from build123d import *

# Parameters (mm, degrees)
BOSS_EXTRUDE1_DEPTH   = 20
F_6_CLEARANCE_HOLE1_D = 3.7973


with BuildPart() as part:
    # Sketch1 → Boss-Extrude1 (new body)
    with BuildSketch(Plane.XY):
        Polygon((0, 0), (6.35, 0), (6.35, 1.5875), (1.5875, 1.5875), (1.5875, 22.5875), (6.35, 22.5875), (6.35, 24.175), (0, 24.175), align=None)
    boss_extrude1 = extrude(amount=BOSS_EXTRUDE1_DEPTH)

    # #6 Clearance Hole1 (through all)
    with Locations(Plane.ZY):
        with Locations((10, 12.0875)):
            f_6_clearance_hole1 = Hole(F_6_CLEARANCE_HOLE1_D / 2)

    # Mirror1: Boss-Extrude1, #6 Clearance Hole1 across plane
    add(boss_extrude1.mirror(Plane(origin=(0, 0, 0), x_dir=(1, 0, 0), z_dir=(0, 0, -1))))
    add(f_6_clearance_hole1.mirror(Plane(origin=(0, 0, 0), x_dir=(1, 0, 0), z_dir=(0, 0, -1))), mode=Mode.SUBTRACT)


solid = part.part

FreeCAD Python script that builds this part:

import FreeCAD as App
import Part
import Sketcher

V = App.Vector
Q = App.Units.Quantity


def add_polygon(sketch, points):
    """Adds a closed chain of lines whose ends are joined by coincident constraints."""
    first, n = sketch.GeometryCount, len(points)
    for a, b in zip(points, points[1:] + points[:1]):
        sketch.addGeometry(Part.LineSegment(App.Vector(*a, 0), App.Vector(*b, 0)), False)
    for i in range(n):
        sketch.addConstraint(Sketcher.Constraint("Coincident", first + i, 2, first + (i + 1) % n, 1))

doc = App.newDocument("Part")
body = doc.addObject("PartDesign::Body", "Body")

# Sketch on XY plane
sketch1 = body.newObject("Sketcher::SketchObject", "Sketch")
sketch1.AttachmentSupport = (doc.getObject("XY_Plane"), [""])
sketch1.MapMode = "FlatFace"
add_polygon(sketch1, [(0, 0), (6.3, 0), (6.3, 1.6), (1.6, 1.6), (1.6, 22.6), (6.3, 22.6), (6.3, 24.2), (0, 24.2)])  # lines 0-7
sketch1.addConstraint([
    Sketcher.Constraint("Horizontal", 0),
    Sketcher.Constraint("Vertical", 1),
    Sketcher.Constraint("Horizontal", 2),
    Sketcher.Constraint("Vertical", 3),
    Sketcher.Constraint("Horizontal", 4),
    Sketcher.Constraint("Vertical", 5),
    Sketcher.Constraint("Horizontal", 6),
    Sketcher.Constraint("Vertical", 7),
    Sketcher.Constraint("Coincident", 7, 2, -1, 1),
    Sketcher.Constraint("Vertical", 1, 2, 4, 2),
    Sketcher.Constraint("Equal", 1, 5),
    Sketcher.Constraint("DistanceX", 0, 1, 0, 2, Q("0.25 in")),
    Sketcher.Constraint("DistanceX", 2, 2, 2, 1, Q("0.1875 in")),
    Sketcher.Constraint("DistanceY", 1, 1, 1, 2, Q("0.0625 in")),
    Sketcher.Constraint("DistanceY", 3, 1, 3, 2, Q("21 mm")),
])
pad1 = body.newObject("PartDesign::Pad", "Pad")
pad1.Profile = sketch1
pad1.Length = 20

# Sketch on YZ plane
sketch2 = body.newObject("Sketcher::SketchObject", "Sketch001")
sketch2.AttachmentSupport = (doc.getObject("YZ_Plane"), [""])
sketch2.MapMode = "FlatFace"
sketch2.addGeometry(Part.Circle(V(12.1, 10, 0), V(0, 0, 1), 1.9), False)
sketch2.addConstraint([
    Sketcher.Constraint("Diameter", 0, Q("0.1495 in")),
    Sketcher.Constraint("DistanceX", -1, 1, 0, 3, Q("12.0875 mm")),
    Sketcher.Constraint("DistanceY", -1, 1, 0, 3, Q("10 mm")),
])
doc.recompute()
hole = body.newObject("PartDesign::Hole", "Hole")
hole.Profile = sketch2
hole.ThreadType = "None"
hole.Diameter = Q("0.1495 in")
hole.DepthType = "ThroughAll"
hole.Reversed = True
doc.recompute()

mirrored = body.newObject("PartDesign::Mirrored", "Mirrored")
mirrored.Originals = [pad1, hole]
mirrored.MirrorPlane = (doc.getObject("XY_Plane"), [""])
body.Tip = mirrored

doc.recompute()
